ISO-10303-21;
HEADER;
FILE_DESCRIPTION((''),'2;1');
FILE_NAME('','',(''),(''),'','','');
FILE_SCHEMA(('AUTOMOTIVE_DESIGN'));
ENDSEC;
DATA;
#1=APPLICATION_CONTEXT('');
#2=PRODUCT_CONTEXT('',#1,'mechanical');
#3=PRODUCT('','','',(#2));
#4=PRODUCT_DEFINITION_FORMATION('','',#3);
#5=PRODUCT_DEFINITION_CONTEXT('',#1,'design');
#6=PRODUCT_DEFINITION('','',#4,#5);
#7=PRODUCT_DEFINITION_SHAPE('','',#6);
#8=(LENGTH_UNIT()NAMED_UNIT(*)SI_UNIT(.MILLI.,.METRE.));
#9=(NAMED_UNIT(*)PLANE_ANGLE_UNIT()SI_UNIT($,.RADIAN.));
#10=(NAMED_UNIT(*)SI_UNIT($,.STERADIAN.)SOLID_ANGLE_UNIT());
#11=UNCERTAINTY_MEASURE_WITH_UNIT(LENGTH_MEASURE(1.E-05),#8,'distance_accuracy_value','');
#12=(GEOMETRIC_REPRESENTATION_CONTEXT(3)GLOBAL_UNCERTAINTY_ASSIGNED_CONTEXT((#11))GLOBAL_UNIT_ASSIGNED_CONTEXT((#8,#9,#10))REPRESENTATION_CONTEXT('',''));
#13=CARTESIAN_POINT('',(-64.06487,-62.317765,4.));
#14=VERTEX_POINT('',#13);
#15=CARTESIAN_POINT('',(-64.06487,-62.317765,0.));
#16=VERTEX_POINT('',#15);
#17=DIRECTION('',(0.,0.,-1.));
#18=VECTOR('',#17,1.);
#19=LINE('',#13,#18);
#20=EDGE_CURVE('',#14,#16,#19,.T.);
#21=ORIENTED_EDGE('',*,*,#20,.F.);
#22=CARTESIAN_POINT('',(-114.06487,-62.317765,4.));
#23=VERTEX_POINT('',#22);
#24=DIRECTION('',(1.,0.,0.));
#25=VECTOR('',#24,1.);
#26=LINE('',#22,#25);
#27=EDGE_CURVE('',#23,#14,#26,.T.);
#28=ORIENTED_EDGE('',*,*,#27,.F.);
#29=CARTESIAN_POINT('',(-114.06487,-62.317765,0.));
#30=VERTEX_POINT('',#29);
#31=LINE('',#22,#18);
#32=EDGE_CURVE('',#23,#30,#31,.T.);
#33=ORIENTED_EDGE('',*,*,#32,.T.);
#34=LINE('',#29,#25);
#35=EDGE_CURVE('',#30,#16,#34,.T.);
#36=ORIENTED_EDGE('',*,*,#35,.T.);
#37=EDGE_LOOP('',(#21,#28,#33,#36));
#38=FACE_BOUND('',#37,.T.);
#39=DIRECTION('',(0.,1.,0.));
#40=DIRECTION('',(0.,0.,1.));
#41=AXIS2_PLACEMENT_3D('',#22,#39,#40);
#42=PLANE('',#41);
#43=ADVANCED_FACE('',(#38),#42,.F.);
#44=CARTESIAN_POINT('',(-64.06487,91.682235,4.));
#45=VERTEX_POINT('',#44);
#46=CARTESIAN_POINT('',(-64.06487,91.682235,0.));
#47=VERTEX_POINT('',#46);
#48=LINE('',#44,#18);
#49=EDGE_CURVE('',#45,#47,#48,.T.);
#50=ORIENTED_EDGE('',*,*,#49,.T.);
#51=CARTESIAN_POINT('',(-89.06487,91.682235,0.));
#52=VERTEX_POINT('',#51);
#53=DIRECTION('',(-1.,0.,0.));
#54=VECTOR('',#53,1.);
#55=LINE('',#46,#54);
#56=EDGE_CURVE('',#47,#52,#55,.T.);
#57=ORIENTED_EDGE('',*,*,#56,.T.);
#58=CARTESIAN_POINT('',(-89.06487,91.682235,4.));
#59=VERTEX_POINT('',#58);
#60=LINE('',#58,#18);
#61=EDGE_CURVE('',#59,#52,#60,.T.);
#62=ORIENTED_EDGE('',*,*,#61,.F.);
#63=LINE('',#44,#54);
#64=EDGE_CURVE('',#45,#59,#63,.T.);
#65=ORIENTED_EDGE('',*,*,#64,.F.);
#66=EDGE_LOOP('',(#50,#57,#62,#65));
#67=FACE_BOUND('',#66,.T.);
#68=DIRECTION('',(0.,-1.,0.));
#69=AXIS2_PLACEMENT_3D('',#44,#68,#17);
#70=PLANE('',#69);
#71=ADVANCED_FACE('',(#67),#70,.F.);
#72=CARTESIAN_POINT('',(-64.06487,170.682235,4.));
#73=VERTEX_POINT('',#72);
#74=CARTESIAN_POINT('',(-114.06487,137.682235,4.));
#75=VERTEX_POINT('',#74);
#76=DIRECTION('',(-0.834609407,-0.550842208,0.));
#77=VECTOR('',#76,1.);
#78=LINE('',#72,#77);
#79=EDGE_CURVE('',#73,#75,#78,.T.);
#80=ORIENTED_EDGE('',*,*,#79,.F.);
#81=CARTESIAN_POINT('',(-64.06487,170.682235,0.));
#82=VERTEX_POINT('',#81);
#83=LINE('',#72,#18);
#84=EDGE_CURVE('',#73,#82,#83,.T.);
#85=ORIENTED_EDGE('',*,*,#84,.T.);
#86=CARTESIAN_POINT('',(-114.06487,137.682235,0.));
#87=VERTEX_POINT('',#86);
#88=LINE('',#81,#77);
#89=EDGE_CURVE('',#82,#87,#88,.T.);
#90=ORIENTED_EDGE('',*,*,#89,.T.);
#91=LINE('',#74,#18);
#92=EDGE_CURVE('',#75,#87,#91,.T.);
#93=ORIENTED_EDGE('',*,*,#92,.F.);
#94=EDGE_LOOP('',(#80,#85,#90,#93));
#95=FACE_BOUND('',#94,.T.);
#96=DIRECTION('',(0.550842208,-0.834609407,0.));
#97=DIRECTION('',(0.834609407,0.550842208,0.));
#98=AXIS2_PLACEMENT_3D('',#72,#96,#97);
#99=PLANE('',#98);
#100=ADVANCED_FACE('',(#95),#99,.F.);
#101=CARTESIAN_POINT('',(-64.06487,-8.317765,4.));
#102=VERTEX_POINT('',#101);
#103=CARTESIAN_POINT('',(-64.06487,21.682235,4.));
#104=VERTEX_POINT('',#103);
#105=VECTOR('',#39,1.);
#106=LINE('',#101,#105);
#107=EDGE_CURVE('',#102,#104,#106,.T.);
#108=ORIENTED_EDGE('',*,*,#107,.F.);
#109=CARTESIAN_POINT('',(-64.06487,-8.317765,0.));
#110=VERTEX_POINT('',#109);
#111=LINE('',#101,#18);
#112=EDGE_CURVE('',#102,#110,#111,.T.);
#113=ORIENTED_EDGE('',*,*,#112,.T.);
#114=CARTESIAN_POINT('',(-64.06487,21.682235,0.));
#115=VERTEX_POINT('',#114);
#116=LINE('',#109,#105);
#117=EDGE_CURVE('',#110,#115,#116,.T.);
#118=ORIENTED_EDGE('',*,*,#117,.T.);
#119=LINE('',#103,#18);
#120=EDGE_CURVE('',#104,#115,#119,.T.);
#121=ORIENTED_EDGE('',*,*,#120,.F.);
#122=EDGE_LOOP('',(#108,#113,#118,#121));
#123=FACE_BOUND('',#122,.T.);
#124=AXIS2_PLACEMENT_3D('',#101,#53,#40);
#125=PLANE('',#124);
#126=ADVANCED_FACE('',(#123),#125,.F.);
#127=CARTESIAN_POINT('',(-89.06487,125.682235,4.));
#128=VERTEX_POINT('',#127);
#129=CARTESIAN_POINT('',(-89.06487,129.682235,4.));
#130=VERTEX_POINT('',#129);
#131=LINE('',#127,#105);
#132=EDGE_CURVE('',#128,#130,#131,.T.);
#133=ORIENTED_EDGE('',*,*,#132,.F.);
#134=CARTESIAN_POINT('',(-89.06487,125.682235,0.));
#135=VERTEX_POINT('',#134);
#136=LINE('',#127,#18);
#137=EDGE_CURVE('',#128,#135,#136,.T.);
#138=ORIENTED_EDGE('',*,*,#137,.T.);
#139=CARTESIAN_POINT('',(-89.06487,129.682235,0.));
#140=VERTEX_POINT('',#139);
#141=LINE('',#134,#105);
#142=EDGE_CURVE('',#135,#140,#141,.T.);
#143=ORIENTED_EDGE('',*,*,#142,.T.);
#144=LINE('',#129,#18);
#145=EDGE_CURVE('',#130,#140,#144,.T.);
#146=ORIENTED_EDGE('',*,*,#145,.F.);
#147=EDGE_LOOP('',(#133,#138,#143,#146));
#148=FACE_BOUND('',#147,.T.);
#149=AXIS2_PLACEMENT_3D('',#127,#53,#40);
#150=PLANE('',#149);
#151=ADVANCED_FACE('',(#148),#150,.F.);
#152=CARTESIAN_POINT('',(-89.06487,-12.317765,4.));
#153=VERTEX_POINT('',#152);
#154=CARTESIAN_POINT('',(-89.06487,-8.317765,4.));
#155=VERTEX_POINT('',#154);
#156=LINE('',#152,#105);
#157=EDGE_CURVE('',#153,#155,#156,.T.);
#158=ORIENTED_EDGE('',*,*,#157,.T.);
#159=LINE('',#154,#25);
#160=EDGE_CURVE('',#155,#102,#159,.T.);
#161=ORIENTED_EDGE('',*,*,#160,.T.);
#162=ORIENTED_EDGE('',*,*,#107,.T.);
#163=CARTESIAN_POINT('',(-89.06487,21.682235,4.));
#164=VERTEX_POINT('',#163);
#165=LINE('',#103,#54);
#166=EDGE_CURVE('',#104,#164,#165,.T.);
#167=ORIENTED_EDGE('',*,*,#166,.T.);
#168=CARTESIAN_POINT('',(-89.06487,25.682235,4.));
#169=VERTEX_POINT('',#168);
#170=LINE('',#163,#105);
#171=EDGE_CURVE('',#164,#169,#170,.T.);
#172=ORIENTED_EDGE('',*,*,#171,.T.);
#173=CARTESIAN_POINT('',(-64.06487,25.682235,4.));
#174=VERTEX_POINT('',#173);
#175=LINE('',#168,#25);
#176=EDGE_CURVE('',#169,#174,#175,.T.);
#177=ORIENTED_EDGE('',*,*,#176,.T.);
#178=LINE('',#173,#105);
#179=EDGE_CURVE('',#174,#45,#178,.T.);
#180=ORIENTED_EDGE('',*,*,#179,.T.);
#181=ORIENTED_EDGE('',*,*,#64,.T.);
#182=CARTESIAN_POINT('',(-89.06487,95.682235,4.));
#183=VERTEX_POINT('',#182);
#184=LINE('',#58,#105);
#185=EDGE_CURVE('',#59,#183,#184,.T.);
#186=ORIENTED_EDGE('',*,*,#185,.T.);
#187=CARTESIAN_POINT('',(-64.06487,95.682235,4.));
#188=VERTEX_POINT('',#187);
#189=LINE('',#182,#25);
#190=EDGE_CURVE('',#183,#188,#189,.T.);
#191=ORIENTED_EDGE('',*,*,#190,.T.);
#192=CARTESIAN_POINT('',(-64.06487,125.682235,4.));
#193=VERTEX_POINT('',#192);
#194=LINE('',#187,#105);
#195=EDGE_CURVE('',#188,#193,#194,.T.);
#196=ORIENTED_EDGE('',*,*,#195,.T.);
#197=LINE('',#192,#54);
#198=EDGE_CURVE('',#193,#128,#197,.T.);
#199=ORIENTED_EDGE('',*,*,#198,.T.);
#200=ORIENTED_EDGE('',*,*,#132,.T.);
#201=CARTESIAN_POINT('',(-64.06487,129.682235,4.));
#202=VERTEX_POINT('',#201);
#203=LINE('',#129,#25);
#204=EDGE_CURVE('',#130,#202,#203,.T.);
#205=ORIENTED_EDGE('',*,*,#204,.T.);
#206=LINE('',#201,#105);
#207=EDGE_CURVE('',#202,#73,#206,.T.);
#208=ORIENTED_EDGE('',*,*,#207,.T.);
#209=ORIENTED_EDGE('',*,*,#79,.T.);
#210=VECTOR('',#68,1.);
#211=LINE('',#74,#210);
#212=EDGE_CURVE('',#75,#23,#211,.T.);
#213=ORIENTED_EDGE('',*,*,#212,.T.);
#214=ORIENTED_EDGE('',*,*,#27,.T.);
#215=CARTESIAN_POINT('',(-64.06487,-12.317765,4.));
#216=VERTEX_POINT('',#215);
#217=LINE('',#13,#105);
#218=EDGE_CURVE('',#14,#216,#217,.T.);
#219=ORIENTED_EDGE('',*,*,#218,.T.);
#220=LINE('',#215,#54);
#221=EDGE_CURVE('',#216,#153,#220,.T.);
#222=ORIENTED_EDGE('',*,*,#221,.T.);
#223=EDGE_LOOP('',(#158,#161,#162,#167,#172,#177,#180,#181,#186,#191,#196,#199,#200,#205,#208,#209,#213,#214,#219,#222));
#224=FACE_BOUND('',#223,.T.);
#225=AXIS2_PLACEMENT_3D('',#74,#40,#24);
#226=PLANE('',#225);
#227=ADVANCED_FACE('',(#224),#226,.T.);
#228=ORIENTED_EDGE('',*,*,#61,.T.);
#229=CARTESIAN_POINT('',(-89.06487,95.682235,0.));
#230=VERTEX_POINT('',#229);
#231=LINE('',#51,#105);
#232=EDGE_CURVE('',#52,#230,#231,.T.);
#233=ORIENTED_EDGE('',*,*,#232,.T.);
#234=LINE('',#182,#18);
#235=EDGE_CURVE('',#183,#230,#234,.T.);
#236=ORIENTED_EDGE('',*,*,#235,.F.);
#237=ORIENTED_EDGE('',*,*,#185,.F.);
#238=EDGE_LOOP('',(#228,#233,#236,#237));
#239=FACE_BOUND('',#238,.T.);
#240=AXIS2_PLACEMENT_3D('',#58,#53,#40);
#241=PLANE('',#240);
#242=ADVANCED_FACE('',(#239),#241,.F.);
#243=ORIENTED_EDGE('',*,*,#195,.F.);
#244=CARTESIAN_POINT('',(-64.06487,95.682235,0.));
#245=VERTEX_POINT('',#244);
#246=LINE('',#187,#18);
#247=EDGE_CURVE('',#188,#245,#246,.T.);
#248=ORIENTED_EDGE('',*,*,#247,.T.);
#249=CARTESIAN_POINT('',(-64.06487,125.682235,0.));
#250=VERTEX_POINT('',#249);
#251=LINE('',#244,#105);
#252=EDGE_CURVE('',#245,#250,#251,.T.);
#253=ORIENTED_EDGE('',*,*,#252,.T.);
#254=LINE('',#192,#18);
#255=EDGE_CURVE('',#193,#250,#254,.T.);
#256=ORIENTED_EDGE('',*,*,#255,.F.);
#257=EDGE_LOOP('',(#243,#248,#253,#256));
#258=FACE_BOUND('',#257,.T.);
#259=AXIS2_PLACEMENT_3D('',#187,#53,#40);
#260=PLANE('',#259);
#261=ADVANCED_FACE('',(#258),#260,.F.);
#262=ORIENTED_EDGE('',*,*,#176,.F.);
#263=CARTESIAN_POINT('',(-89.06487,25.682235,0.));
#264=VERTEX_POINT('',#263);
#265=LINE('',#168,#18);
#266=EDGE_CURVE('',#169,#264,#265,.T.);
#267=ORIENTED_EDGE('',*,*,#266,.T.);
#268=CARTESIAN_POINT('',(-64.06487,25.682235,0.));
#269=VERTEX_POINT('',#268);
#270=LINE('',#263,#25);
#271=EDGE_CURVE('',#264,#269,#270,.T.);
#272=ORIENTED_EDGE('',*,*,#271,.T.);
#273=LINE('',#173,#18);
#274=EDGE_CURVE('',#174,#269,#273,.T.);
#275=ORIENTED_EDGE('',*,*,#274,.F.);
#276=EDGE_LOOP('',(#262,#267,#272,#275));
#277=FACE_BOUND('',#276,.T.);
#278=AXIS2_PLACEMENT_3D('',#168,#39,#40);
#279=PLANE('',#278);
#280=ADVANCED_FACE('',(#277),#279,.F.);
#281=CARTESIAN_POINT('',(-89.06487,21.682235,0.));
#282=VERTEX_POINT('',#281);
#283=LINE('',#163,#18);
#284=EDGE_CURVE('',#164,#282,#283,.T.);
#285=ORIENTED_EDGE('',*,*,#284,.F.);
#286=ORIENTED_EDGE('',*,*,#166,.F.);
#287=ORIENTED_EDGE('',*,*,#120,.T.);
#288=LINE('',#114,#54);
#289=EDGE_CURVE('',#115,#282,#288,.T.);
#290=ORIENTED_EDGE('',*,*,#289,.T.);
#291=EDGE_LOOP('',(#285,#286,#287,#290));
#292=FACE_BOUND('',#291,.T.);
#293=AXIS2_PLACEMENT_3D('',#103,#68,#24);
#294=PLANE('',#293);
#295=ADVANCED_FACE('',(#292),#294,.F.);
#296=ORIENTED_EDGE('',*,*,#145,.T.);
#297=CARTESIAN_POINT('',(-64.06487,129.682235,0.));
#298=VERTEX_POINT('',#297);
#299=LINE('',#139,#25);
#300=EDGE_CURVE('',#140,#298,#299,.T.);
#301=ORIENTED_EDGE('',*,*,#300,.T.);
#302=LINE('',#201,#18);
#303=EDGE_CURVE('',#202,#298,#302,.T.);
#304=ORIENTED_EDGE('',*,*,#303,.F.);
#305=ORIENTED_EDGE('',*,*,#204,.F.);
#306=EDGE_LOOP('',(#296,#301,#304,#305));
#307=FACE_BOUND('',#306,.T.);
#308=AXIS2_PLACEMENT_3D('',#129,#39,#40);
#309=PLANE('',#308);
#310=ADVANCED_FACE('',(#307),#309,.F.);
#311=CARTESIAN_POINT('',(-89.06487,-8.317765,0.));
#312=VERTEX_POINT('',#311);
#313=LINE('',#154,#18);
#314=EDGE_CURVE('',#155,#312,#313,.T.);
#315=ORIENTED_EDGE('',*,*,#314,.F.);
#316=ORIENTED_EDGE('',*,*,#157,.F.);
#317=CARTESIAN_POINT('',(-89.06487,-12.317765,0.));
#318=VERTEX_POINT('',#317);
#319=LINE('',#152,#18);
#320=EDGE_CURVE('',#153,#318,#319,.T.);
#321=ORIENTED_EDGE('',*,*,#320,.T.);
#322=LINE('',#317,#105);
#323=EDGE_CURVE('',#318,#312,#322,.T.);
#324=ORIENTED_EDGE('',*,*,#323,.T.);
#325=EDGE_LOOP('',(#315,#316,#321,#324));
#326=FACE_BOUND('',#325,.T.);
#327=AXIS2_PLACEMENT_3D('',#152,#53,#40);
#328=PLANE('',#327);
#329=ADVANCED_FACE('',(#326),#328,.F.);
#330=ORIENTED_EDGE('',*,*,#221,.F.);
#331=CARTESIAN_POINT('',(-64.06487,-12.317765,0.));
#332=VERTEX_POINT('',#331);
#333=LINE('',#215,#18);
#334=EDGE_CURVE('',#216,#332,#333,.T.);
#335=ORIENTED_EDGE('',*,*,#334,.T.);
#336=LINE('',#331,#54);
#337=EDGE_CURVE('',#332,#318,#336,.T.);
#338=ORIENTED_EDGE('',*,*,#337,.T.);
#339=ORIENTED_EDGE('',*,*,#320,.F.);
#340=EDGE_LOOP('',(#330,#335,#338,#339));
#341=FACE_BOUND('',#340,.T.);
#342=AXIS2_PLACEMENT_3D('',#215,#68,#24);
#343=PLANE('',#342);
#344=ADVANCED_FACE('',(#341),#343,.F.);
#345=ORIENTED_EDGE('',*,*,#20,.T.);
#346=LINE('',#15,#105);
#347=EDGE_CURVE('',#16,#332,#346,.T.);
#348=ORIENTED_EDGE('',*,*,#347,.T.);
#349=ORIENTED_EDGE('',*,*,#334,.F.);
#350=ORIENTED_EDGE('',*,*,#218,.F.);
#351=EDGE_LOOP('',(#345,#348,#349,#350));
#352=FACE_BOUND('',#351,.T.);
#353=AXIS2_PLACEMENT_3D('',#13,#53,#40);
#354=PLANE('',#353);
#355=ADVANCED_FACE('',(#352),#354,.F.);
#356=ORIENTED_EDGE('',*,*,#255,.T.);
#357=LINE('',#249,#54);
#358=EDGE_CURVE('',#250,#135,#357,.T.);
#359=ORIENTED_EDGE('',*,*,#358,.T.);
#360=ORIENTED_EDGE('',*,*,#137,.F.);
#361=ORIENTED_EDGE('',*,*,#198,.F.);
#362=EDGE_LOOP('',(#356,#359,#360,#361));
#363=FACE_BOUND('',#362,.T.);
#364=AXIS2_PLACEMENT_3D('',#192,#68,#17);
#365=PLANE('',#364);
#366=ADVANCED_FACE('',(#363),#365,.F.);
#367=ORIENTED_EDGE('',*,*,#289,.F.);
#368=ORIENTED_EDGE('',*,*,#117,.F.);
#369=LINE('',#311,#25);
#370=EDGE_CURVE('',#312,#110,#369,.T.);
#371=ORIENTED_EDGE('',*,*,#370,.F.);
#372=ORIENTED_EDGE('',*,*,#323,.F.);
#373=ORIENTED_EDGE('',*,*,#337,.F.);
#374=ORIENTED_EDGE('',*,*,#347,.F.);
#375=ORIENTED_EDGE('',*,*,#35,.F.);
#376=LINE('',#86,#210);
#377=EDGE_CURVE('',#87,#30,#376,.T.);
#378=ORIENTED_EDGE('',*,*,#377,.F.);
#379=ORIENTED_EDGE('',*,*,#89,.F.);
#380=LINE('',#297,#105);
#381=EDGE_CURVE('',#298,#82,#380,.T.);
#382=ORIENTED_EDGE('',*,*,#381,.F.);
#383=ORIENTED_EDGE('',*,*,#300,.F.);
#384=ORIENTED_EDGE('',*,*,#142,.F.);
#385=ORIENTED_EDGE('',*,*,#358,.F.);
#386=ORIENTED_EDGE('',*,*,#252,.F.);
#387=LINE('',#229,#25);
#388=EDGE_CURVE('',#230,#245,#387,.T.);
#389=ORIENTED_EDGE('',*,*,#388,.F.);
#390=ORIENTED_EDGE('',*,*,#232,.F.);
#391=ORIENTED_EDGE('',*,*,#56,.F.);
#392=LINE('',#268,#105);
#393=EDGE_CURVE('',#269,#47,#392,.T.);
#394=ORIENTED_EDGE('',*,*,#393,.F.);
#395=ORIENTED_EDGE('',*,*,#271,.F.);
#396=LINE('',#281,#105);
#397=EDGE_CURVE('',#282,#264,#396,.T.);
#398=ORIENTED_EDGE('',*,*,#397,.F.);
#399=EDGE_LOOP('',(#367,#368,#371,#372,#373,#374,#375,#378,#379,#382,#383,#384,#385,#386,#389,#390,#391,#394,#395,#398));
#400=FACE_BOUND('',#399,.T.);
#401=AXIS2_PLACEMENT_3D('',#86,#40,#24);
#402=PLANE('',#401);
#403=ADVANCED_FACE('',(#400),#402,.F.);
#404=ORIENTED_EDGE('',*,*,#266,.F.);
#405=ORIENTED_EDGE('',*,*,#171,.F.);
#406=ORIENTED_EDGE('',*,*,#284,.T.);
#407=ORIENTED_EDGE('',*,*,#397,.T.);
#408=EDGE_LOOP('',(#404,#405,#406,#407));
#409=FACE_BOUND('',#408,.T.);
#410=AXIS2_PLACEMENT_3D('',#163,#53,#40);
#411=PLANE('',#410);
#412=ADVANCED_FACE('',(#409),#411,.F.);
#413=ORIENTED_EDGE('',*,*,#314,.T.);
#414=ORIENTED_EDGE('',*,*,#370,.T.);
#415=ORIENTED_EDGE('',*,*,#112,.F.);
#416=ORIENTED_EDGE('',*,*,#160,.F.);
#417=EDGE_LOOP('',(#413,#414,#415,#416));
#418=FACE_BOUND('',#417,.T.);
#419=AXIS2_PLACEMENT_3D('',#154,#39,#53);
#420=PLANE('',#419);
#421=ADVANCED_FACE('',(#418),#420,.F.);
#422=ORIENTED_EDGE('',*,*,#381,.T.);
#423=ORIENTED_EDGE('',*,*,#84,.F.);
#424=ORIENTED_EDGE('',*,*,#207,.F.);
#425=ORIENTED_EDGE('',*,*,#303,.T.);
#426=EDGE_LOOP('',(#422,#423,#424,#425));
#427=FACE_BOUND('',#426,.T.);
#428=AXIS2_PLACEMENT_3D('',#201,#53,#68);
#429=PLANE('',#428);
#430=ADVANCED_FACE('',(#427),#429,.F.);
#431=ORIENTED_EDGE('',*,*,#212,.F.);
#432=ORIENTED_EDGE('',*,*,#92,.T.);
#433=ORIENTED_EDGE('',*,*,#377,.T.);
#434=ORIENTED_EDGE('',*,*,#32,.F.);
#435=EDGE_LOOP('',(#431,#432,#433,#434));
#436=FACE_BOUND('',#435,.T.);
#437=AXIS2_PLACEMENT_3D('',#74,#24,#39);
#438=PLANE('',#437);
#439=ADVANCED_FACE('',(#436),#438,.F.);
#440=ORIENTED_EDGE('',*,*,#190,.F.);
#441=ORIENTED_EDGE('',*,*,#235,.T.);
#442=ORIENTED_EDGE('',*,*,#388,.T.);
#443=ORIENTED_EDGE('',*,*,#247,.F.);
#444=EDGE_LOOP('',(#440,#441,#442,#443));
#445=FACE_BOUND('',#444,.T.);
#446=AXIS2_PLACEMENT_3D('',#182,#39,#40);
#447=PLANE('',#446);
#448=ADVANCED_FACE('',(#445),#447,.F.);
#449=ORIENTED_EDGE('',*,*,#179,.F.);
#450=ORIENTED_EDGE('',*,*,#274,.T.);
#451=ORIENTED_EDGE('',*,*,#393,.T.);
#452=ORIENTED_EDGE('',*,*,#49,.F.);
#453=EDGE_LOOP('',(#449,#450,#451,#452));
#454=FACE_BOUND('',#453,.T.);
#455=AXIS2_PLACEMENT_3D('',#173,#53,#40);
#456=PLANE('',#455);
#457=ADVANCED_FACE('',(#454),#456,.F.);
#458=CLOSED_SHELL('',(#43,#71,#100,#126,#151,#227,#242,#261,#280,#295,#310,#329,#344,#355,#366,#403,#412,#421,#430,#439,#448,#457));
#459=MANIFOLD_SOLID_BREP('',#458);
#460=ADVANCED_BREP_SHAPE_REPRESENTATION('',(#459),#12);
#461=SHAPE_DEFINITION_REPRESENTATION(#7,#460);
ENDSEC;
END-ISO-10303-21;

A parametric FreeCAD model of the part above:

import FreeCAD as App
import Part
import Sketcher

V = App.Vector

doc = App.newDocument("Part")
body = doc.addObject("PartDesign::Body", "Body")

# Sketch on XY plane
sketch1 = doc.addObject("Sketcher::SketchObject", "Sketch")
body.addObject(sketch1)
sketch1.AttachmentSupport = (doc.XY_Plane, [""])
sketch1.MapMode = "FlatFace"
sketch1.addGeometry([
    Part.LineSegment(V(-114.1, 137.7, 0), V(-114.1, -62.3, 0)),  # 0
    Part.LineSegment(V(-114.1, -62.3, 0), V(-64.1, -62.3, 0)),  # 1
    Part.LineSegment(V(-64.1, -62.3, 0), V(-64.1, -12.3, 0)),  # 2
    Part.LineSegment(V(-64.1, -12.3, 0), V(-89.1, -12.3, 0)),  # 3
    Part.LineSegment(V(-89.1, -12.3, 0), V(-89.1, -8.3, 0)),  # 4
    Part.LineSegment(V(-89.1, -8.3, 0), V(-64.1, -8.3, 0)),  # 5
    Part.LineSegment(V(-64.1, -8.3, 0), V(-64.1, 21.7, 0)),  # 6
    Part.LineSegment(V(-64.1, 21.7, 0), V(-89.1, 21.7, 0)),  # 7
    Part.LineSegment(V(-89.1, 21.7, 0), V(-89.1, 25.7, 0)),  # 8
    Part.LineSegment(V(-89.1, 25.7, 0), V(-64.1, 25.7, 0)),  # 9
    Part.LineSegment(V(-64.1, 25.7, 0), V(-64.1, 91.7, 0)),  # 10
    Part.LineSegment(V(-64.1, 91.7, 0), V(-89.1, 91.7, 0)),  # 11
    Part.LineSegment(V(-89.1, 91.7, 0), V(-89.1, 95.7, 0)),  # 12
    Part.LineSegment(V(-89.1, 95.7, 0), V(-64.1, 95.7, 0)),  # 13
    Part.LineSegment(V(-64.1, 95.7, 0), V(-64.1, 125.7, 0)),  # 14
    Part.LineSegment(V(-64.1, 125.7, 0), V(-89.1, 125.7, 0)),  # 15
    Part.LineSegment(V(-89.1, 125.7, 0), V(-89.1, 129.7, 0)),  # 16
    Part.LineSegment(V(-89.1, 129.7, 0), V(-64.1, 129.7, 0)),  # 17
    Part.LineSegment(V(-64.1, 129.7, 0), V(-64.1, 170.7, 0)),  # 18
    Part.LineSegment(V(-64.1, 170.7, 0), V(-114.1, 137.7, 0)),  # 19
], False)
sketch1.addConstraint([
    Sketcher.Constraint("Coincident", 0, 2, 1, 1),
    Sketcher.Constraint("Coincident", 1, 2, 2, 1),
    Sketcher.Constraint("Coincident", 2, 2, 3, 1),
    Sketcher.Constraint("Coincident", 3, 2, 4, 1),
    Sketcher.Constraint("Coincident", 4, 2, 5, 1),
    Sketcher.Constraint("Coincident", 5, 2, 6, 1),
    Sketcher.Constraint("Coincident", 6, 2, 7, 1),
    Sketcher.Constraint("Coincident", 7, 2, 8, 1),
    Sketcher.Constraint("Coincident", 8, 2, 9, 1),
    Sketcher.Constraint("Coincident", 9, 2, 10, 1),
    Sketcher.Constraint("Coincident", 10, 2, 11, 1),
    Sketcher.Constraint("Coincident", 11, 2, 12, 1),
    Sketcher.Constraint("Coincident", 12, 2, 13, 1),
    Sketcher.Constraint("Coincident", 13, 2, 14, 1),
    Sketcher.Constraint("Coincident", 14, 2, 15, 1),
    Sketcher.Constraint("Coincident", 15, 2, 16, 1),
    Sketcher.Constraint("Coincident", 16, 2, 17, 1),
    Sketcher.Constraint("Coincident", 17, 2, 18, 1),
    Sketcher.Constraint("Coincident", 18, 2, 19, 1),
    Sketcher.Constraint("Coincident", 19, 2, 0, 1),
    Sketcher.Constraint("Vertical", 0),
    Sketcher.Constraint("Horizontal", 1),
    Sketcher.Constraint("Vertical", 2),
    Sketcher.Constraint("Horizontal", 3),
    Sketcher.Constraint("Vertical", 4),
    Sketcher.Constraint("Horizontal", 5),
    Sketcher.Constraint("Vertical", 6),
    Sketcher.Constraint("Horizontal", 7),
    Sketcher.Constraint("Vertical", 8),
    Sketcher.Constraint("Horizontal", 9),
    Sketcher.Constraint("Vertical", 10),
    Sketcher.Constraint("Horizontal", 11),
    Sketcher.Constraint("Vertical", 12),
    Sketcher.Constraint("Horizontal", 13),
    Sketcher.Constraint("Vertical", 14),
    Sketcher.Constraint("Horizontal", 15),
    Sketcher.Constraint("Vertical", 16),
    Sketcher.Constraint("Horizontal", 17),
    Sketcher.Constraint("Vertical", 18),
    Sketcher.Constraint("Vertical", 2, 2, 5, 2),
    Sketcher.Constraint("Vertical", 4, 2, 7, 2),
    Sketcher.Constraint("Vertical", 6, 2, 9, 2),
    Sketcher.Constraint("Vertical", 8, 2, 11, 2),
    Sketcher.Constraint("Vertical", 10, 2, 13, 2),
    Sketcher.Constraint("Vertical", 12, 2, 15, 2),
    Sketcher.Constraint("Vertical", 14, 2, 17, 2),
    Sketcher.Constraint("Equal", 1, 2),
    Sketcher.Constraint("Equal", 4, 8),
    Sketcher.Constraint("Equal", 8, 12),
    Sketcher.Constraint("Equal", 6, 14),
    Sketcher.Constraint("Equal", 12, 16),
    Sketcher.Constraint("DistanceX", 1, 1, 1, 2, 50.0),
    Sketcher.Constraint("DistanceX", 3, 2, 3, 1, 25.0),
    Sketcher.Constraint("DistanceY", 0, 2, 0, 1, 200.0),
    Sketcher.Constraint("DistanceY", 4, 1, 4, 2, 4.0),
    Sketcher.Constraint("DistanceY", 6, 1, 6, 2, 30.0),
    Sketcher.Constraint("DistanceY", 10, 1, 10, 2, 66.0),
    Sketcher.Constraint("DistanceY", 18, 1, 18, 2, 41.0),
    Sketcher.Constraint("DistanceX", 0, 2, -1, 1, 114.06487),
    Sketcher.Constraint("DistanceY", 0, 2, -1, 1, 62.317765),
])
pad1 = doc.addObject("PartDesign::Pad", "Pad")
body.addObject(pad1)
pad1.Profile = sketch1
pad1.Length = 4

doc.recompute()
